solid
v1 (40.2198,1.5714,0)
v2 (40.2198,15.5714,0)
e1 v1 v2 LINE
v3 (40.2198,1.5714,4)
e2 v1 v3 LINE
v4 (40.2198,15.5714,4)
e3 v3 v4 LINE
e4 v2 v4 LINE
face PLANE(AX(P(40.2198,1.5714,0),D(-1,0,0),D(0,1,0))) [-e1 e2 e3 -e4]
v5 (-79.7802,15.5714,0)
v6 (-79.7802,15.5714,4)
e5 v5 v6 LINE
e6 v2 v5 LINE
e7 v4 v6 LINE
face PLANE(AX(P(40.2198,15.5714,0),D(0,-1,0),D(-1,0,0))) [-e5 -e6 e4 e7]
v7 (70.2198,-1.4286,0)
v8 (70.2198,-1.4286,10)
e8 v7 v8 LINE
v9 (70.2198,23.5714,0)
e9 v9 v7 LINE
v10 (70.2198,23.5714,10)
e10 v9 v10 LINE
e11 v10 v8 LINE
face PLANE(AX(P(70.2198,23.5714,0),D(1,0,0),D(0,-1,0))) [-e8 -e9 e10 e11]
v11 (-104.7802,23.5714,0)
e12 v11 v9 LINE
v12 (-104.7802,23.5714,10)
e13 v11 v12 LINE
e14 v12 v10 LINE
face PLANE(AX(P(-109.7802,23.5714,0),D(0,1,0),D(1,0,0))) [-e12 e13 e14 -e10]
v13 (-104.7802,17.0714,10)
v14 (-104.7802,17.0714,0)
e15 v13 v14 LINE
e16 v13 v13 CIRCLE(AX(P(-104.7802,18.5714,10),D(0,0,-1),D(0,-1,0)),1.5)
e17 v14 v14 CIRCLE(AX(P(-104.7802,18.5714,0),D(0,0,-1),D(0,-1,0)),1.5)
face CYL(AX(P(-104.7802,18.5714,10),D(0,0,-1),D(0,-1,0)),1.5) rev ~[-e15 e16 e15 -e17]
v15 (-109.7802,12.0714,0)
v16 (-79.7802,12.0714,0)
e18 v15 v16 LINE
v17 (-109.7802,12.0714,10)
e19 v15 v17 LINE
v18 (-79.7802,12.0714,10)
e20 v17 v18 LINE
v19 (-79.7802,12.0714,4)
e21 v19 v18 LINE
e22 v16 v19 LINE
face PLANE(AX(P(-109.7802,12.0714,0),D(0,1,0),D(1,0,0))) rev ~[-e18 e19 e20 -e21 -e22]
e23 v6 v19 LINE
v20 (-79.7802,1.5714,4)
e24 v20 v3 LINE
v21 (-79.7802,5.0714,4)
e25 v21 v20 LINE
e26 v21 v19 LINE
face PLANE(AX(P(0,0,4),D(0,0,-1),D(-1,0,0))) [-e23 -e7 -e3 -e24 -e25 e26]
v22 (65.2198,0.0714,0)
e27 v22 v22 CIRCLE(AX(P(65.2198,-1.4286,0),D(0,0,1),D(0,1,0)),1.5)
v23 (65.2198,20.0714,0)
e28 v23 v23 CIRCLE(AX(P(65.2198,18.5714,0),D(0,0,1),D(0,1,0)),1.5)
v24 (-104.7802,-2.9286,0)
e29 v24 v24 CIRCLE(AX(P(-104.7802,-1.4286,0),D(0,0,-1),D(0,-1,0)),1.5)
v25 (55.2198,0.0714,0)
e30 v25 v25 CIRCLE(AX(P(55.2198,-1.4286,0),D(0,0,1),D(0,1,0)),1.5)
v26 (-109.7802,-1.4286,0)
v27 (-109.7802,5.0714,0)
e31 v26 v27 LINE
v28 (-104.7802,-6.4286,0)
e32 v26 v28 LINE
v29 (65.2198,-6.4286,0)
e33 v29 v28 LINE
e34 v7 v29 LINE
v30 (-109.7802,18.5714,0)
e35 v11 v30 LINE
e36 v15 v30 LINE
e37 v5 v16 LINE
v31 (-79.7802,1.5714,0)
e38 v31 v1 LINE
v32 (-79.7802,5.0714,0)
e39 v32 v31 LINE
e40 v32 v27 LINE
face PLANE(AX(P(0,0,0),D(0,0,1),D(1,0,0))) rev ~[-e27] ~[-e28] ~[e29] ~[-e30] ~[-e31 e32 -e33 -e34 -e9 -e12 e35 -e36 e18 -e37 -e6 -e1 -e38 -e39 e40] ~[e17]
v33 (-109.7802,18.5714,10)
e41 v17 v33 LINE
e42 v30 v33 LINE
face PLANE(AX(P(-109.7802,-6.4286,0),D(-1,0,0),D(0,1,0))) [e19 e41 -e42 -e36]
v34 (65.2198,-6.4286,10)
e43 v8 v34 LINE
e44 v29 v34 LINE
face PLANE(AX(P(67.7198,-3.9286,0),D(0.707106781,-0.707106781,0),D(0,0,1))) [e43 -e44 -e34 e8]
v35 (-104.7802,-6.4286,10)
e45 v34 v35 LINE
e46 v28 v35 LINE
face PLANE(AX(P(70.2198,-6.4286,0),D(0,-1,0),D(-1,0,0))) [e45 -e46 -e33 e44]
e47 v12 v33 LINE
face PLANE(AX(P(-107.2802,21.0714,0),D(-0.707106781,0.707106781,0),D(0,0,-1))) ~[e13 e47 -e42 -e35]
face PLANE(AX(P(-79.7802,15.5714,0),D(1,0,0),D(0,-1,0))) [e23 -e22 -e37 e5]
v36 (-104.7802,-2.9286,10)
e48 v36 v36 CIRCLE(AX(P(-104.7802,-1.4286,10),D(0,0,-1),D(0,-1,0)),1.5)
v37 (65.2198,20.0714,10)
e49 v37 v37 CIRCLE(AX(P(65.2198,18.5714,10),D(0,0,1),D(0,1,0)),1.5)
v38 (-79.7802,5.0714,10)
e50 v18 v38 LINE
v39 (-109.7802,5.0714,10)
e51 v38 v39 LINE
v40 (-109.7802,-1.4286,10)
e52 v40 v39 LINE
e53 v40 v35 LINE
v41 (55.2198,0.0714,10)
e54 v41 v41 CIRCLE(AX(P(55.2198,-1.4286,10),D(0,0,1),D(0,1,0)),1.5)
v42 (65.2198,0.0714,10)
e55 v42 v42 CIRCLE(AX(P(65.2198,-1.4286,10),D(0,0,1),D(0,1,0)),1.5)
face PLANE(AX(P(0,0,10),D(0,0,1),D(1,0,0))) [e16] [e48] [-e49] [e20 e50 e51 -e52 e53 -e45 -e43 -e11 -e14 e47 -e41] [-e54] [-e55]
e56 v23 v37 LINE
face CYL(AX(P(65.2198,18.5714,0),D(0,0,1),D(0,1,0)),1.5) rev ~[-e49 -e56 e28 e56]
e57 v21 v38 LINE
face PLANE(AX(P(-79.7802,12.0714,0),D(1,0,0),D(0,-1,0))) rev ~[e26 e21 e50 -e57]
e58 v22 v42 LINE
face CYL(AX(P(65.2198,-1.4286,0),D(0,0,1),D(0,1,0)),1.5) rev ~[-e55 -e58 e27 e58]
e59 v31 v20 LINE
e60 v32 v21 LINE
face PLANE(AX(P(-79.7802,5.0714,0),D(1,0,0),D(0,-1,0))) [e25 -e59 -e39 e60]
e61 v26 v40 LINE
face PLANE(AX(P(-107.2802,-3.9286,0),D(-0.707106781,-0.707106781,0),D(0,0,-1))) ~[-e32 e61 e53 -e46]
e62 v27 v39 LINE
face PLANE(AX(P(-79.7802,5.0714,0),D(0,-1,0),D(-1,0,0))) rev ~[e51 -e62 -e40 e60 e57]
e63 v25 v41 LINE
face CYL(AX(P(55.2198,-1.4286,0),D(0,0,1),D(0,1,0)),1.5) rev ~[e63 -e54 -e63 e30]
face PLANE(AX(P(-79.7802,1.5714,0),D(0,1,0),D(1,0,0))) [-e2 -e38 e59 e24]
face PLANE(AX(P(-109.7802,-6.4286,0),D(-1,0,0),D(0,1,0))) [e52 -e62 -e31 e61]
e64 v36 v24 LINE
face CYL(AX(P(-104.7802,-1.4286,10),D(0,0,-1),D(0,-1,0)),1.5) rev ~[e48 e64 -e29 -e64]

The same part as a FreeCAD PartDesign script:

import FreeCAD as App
import Part
import Sketcher
Q = App.Units.Quantity


def edges_at(feature, points):
    """Names of the edges that pass closest to the given points."""
    edges = feature.Shape.Edges
    near = lambda p: min(range(len(edges)), key=lambda i: edges[i].distToShape(Part.Vertex(*p))[0])
    return sorted({f"Edge{near(p) + 1}" for p in points})

doc = App.newDocument("Part")
params = doc.addObject("Spreadsheet::Sheet", "Params")
for row, (alias, value) in enumerate([
    ("sketch1_width", "180 mm"),
    ("sketch1_height", "30 mm"),
    ("pad1_length", "10 mm"),
    ("sketch2_diameter", "3 mm"),
    ("hole_diameter", "3 mm"),
    ("hole_depth", "10 mm"),
    ("chamfer_size", "5 mm"),
    ("sketch3_width", "30 mm"),
    ("sketch3_height", "7 mm"),
    ("pocket1_length", "10 mm"),
    ("sketch4_width", "120 mm"),
    ("sketch4_height", "14 mm"),
    ("pocket2_length", "4 mm"),
    ("sketch5_diameter", "3 mm"),
    ("hole2_diameter", "3 mm"),
    ("hole2_depth", "10 mm"),
    ("chamfer2_size", "5 mm"),
], start=1):
    params.set(f"A{row}", alias)
    params.set(f"B{row}", "=" + value)
    params.setAlias(f"B{row}", alias)

body = doc.addObject("PartDesign::Body", "Body")

# Sketch on XY plane
sketch1 = body.newObject("Sketcher::SketchObject", "Sketch")
sketch1.AttachmentSupport = (doc.getObject("XY_Plane"), [""])
sketch1.MapMode = "FlatFace"
sketch1.addGeometry([
    Part.LineSegment(App.Vector(70, 24, 0), App.Vector(-110, 24, 0)),
    Part.LineSegment(App.Vector(-110, 24, 0), App.Vector(-110, -6, 0)),
    Part.LineSegment(App.Vector(-110, -6, 0), App.Vector(70, -6, 0)),
    Part.LineSegment(App.Vector(70, -6, 0), App.Vector(70, 24, 0)),
], False)
sketch1.addConstraint([
    Sketcher.Constraint("Coincident", 0, 2, 1, 1),
    Sketcher.Constraint("Coincident", 1, 2, 2, 1),
    Sketcher.Constraint("Coincident", 2, 2, 3, 1),
    Sketcher.Constraint("Coincident", 3, 2, 0, 1),
    Sketcher.Constraint("Horizontal", 0),
    Sketcher.Constraint("Vertical", 1),
    Sketcher.Constraint("Horizontal", 2),
    Sketcher.Constraint("Vertical", 3),
    Sketcher.Constraint("DistanceX", 0, 2, 0, 1, Q("180 mm")),
    Sketcher.Constraint("DistanceY", 1, 2, 1, 1, Q("30 mm")),
    Sketcher.Constraint("DistanceX", 0, 2, -1, 1, Q("109.7802 mm")),
    Sketcher.Constraint("DistanceY", -1, 1, 0, 2, Q("23.5714 mm")),
])
sketch1.setExpression("Constraints[8]", "Params.sketch1_width")
sketch1.setExpression("Constraints[9]", "Params.sketch1_height")
pad1 = body.newObject("PartDesign::Pad", "Pad")
pad1.Profile = sketch1
pad1.setExpression("Length", "Params.pad1_length")

# Sketch on XY plane
sketch2 = body.newObject("Sketcher::SketchObject", "Sketch001")
sketch2.AttachmentSupport = (doc.getObject("XY_Plane"), [""])
sketch2.MapMode = "FlatFace"
sketch2.AttachmentOffset = App.Placement(App.Vector(0, 0, 10), App.Rotation())
sketch2.addGeometry([
    Part.Circle(App.Vector(-104.8, 18.6, 0), App.Vector(0, 0, 1), 1.5),
    Part.Circle(App.Vector(-104.8, -1.4, 0), App.Vector(0, 0, 1), 1.5),
], False)
sketch2.addConstraint([
    Sketcher.Constraint("Equal", 0, 1),
    Sketcher.Constraint("Vertical", 0, 3, 1, 3),
    Sketcher.Constraint("Diameter", 0, Q("3 mm")),
    Sketcher.Constraint("DistanceY", 1, 3, 0, 3, Q("20 mm")),
    Sketcher.Constraint("DistanceX", 0, 3, -1, 1, Q("104.7802 mm")),
    Sketcher.Constraint("DistanceY", -1, 1, 0, 3, Q("18.5714 mm")),
])
sketch2.setExpression("Constraints[2]", "Params.sketch2_diameter")
doc.recompute()
hole = body.newObject("PartDesign::Hole", "Hole")
hole.Profile = sketch2
hole.ThreadType = "None"
hole.setExpression("Diameter", "Params.hole_diameter")
hole.DepthType = "Dimension"
hole.setExpression("Depth", "Params.hole_depth")
hole.DrillPoint = "Angled"
hole.DrillPointAngle = 118
doc.recompute()

chamfer = body.newObject("PartDesign::Chamfer", "Chamfer")
chamfer.Base = (hole, edges_at(hole, [(-109.78, 23.571, 5), (-109.78, -6.429, 5)]))
chamfer.setExpression("Size", "Params.chamfer_size")

# Sketch on XY plane
sketch3 = body.newObject("Sketcher::SketchObject", "Sketch002")
sketch3.AttachmentSupport = (doc.getObject("XY_Plane"), [""])
sketch3.MapMode = "FlatFace"
sketch3.addGeometry([
    Part.LineSegment(App.Vector(-110, 5, 0), App.Vector(-110, 12, 0)),
    Part.LineSegment(App.Vector(-110, 12, 0), App.Vector(-80, 12, 0)),
    Part.LineSegment(App.Vector(-80, 12, 0), App.Vector(-80, 5, 0)),
    Part.LineSegment(App.Vector(-80, 5, 0), App.Vector(-110, 5, 0)),
], False)
sketch3.addConstraint([
    Sketcher.Constraint("Coincident", 0, 2, 1, 1),
    Sketcher.Constraint("Coincident", 1, 2, 2, 1),
    Sketcher.Constraint("Coincident", 2, 2, 3, 1),
    Sketcher.Constraint("Coincident", 3, 2, 0, 1),
    Sketcher.Constraint("Vertical", 0),
    Sketcher.Constraint("Horizontal", 1),
    Sketcher.Constraint("Vertical", 2),
    Sketcher.Constraint("Horizontal", 3),
    Sketcher.Constraint("DistanceX", 1, 1, 1, 2, Q("30 mm")),
    Sketcher.Constraint("DistanceY", 0, 1, 0, 2, Q("7 mm")),
    Sketcher.Constraint("DistanceX", 0, 2, -1, 1, Q("109.7802 mm")),
    Sketcher.Constraint("DistanceY", -1, 1, 0, 2, Q("12.0714 mm")),
])
sketch3.setExpression("Constraints[8]", "Params.sketch3_width")
sketch3.setExpression("Constraints[9]", "Params.sketch3_height")
pocket1 = body.newObject("PartDesign::Pocket", "Pocket")
pocket1.Profile = sketch3
pocket1.setExpression("Length", "Params.pocket1_length")
pocket1.Reversed = True

# Sketch on XY plane
sketch4 = body.newObject("Sketcher::SketchObject", "Sketch003")
sketch4.AttachmentSupport = (doc.getObject("XY_Plane"), [""])
sketch4.MapMode = "FlatFace"
sketch4.addGeometry([
    Part.LineSegment(App.Vector(-80, 16, 0), App.Vector(40, 16, 0)),
    Part.LineSegment(App.Vector(40, 16, 0), App.Vector(40, 2, 0)),
    Part.LineSegment(App.Vector(40, 2, 0), App.Vector(-80, 2, 0)),
    Part.LineSegment(App.Vector(-80, 2, 0), App.Vector(-80, 16, 0)),
], False)
sketch4.addConstraint([
    Sketcher.Constraint("Coincident", 0, 2, 1, 1),
    Sketcher.Constraint("Coincident", 1, 2, 2, 1),
    Sketcher.Constraint("Coincident", 2, 2, 3, 1),
    Sketcher.Constraint("Coincident", 3, 2, 0, 1),
    Sketcher.Constraint("Horizontal", 0),
    Sketcher.Constraint("Vertical", 1),
    Sketcher.Constraint("Horizontal", 2),
    Sketcher.Constraint("Vertical", 3),
    Sketcher.Constraint("DistanceX", 0, 1, 0, 2, Q("120 mm")),
    Sketcher.Constraint("DistanceY", 1, 2, 1, 1, Q("14 mm")),
    Sketcher.Constraint("DistanceX", -1, 1, 0, 2, Q("40.2198 mm")),
    Sketcher.Constraint("DistanceY", -1, 1, 0, 2, Q("15.5714 mm")),
])
sketch4.setExpression("Constraints[8]", "Params.sketch4_width")
sketch4.setExpression("Constraints[9]", "Params.sketch4_height")
pocket2 = body.newObject("PartDesign::Pocket", "Pocket001")
pocket2.Profile = sketch4
pocket2.setExpression("Length", "Params.pocket2_length")
pocket2.Reversed = True

# Sketch on XY plane
sketch5 = body.newObject("Sketcher::SketchObject", "Sketch004")
sketch5.AttachmentSupport = (doc.getObject("XY_Plane"), [""])
sketch5.MapMode = "FlatFace"
sketch5.addGeometry([
    Part.Circle(App.Vector(65.2, 18.6, 0), App.Vector(0, 0, 1), 1.5),
    Part.Circle(App.Vector(65.2, -1.4, 0), App.Vector(0, 0, 1), 1.5),
    Part.Circle(App.Vector(55.2, -1.4, 0), App.Vector(0, 0, 1), 1.5),
], False)
sketch5.addConstraint([
    Sketcher.Constraint("Equal", 0, 1),
    Sketcher.Constraint("Equal", 1, 2),
    Sketcher.Constraint("Horizontal", 1, 3, 2, 3),
    Sketcher.Constraint("Vertical", 0, 3, 1, 3),
    Sketcher.Constraint("Diameter", 0, Q("3 mm")),
    Sketcher.Constraint("DistanceY", 1, 3, 0, 3, Q("20 mm")),
    Sketcher.Constraint("DistanceX", 2, 3, 1, 3, Q("10 mm")),
    Sketcher.Constraint("DistanceX", -1, 1, 0, 3, Q("65.2198 mm")),
    Sketcher.Constraint("DistanceY", -1, 1, 0, 3, Q("18.5714 mm")),
])
sketch5.setExpression("Constraints[4]", "Params.sketch5_diameter")
doc.recompute()
hole2 = body.newObject("PartDesign::Hole", "Hole001")
hole2.Profile = sketch5
hole2.ThreadType = "None"
hole2.setExpression("Diameter", "Params.hole2_diameter")
hole2.DepthType = "Dimension"
hole2.setExpression("Depth", "Params.hole2_depth")
hole2.DrillPoint = "Angled"
hole2.DrillPointAngle = 118
hole2.Reversed = True
doc.recompute()

chamfer2 = body.newObject("PartDesign::Chamfer", "Chamfer001")
chamfer2.Base = (hole2, edges_at(hole2, [(70.22, -6.429, 5)]))
chamfer2.setExpression("Size", "Params.chamfer2_size")

doc.recompute()
